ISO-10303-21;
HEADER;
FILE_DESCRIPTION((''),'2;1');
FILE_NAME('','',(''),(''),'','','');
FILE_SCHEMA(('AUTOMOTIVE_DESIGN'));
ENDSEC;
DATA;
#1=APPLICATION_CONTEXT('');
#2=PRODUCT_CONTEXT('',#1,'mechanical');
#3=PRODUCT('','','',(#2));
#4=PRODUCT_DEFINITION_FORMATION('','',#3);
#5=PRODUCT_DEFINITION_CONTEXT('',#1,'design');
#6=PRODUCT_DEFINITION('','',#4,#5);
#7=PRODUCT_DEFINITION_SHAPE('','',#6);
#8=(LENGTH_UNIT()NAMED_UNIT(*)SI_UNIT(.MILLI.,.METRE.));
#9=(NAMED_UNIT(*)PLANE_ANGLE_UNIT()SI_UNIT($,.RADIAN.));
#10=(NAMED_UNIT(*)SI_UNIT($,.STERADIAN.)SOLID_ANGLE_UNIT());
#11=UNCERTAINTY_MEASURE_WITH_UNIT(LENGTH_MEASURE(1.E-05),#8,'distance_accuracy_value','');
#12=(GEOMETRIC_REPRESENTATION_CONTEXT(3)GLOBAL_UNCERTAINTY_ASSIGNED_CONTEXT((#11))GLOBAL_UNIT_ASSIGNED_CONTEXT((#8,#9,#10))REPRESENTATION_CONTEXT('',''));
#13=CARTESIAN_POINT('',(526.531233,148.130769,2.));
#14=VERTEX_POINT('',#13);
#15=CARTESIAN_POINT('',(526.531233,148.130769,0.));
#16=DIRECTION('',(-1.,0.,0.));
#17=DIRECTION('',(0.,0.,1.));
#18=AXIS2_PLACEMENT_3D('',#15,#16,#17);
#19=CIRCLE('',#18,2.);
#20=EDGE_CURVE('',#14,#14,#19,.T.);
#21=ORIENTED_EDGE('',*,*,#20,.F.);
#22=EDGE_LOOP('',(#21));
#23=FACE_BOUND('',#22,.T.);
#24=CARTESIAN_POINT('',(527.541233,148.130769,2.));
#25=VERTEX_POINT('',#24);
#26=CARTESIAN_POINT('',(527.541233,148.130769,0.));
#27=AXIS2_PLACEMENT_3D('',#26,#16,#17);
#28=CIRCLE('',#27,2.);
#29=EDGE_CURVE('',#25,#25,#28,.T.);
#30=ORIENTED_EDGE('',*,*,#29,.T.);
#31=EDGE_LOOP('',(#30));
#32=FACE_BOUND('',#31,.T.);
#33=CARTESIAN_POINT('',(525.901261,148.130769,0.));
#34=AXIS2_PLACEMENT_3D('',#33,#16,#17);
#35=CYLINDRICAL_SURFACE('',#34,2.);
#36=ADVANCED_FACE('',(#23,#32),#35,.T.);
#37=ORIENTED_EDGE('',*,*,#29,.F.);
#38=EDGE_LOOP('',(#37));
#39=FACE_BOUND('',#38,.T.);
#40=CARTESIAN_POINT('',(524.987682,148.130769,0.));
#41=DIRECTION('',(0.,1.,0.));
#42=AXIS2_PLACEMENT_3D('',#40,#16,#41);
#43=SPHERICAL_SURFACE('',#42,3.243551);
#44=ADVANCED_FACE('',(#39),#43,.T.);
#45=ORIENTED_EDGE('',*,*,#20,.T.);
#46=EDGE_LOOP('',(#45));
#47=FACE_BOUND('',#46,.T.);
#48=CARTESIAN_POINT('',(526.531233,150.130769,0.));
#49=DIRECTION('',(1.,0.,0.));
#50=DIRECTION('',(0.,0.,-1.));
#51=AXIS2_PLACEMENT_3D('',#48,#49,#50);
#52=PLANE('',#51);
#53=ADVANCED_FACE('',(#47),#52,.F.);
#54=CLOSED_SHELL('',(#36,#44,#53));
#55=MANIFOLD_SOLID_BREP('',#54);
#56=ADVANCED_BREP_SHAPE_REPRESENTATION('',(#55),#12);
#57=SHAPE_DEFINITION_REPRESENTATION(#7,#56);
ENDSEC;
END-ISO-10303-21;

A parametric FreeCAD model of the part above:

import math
import FreeCAD as App
import Part
import Sketcher

doc = App.newDocument("Part")
body = doc.addObject("PartDesign::Body", "Body")

# Sketch on XY plane
sketch1 = body.newObject("Sketcher::SketchObject", "Sketch")
sketch1.AttachmentSupport = (doc.getObject("XY_Plane"), [""])
sketch1.MapMode = "FlatFace"
sketch1.addGeometry(Part.LineSegment(App.Vector(526.5, 150.1, 0), App.Vector(526.5, 148.1, 0)), False)
sketch1.addGeometry(Part.LineSegment(App.Vector(526.5, 148.1, 0), App.Vector(528.2, 148.1, 0)), False)
sketch1.addGeometry(Part.ArcOfCircle(Part.Circle(App.Vector(525, 148.1, 0), App.Vector(0, 0, 1), 3.2), math.radians(0), math.radians(38)), False)
sketch1.addGeometry(Part.LineSegment(App.Vector(527.5, 150.1, 0), App.Vector(526.5, 150.1, 0)), False)
sketch1.addGeometry(Part.LineSegment(App.Vector(525, 148.1, 0), App.Vector(528.2, 148.1, 0)), True)  # axis
sketch1.addConstraint(Sketcher.Constraint("Coincident", 0, 2, 1, 1))
sketch1.addConstraint(Sketcher.Constraint("Coincident", 1, 2, 2, 1))
sketch1.addConstraint(Sketcher.Constraint("Coincident", 2, 2, 3, 1))
sketch1.addConstraint(Sketcher.Constraint("Coincident", 3, 2, 0, 1))
sketch1.addConstraint(Sketcher.Constraint("Vertical", 0))
sketch1.addConstraint(Sketcher.Constraint("Horizontal", 1))
sketch1.addConstraint(Sketcher.Constraint("Horizontal", 3))
sketch1.addConstraint(Sketcher.Constraint("Horizontal", 4))
sketch1.addConstraint(Sketcher.Constraint("Coincident", 4, 1, 2, 3))
sketch1.addConstraint(Sketcher.Constraint("Coincident", 4, 2, 1, 2))
sketch1.addConstraint(Sketcher.Constraint("DistanceY", 0, 2, 0, 1, 2.0))
sketch1.addConstraint(Sketcher.Constraint("DistanceX", 1, 1, 1, 2, 1.7))
sketch1.addConstraint(Sketcher.Constraint("DistanceX", 3, 2, 3, 1, 1.01))
sketch1.addConstraint(Sketcher.Constraint("DistanceY", -1, 1, 2, 3, 148.130769))
sketch1.addConstraint(Sketcher.Constraint("DistanceX", -1, 1, 2, 3, 524.987682))
revolution = body.newObject("PartDesign::Revolution", "Revolution")
revolution.Profile = sketch1
revolution.ReferenceAxis = (sketch1, ["Axis0"])
revolution.Angle = 360

doc.recompute()
